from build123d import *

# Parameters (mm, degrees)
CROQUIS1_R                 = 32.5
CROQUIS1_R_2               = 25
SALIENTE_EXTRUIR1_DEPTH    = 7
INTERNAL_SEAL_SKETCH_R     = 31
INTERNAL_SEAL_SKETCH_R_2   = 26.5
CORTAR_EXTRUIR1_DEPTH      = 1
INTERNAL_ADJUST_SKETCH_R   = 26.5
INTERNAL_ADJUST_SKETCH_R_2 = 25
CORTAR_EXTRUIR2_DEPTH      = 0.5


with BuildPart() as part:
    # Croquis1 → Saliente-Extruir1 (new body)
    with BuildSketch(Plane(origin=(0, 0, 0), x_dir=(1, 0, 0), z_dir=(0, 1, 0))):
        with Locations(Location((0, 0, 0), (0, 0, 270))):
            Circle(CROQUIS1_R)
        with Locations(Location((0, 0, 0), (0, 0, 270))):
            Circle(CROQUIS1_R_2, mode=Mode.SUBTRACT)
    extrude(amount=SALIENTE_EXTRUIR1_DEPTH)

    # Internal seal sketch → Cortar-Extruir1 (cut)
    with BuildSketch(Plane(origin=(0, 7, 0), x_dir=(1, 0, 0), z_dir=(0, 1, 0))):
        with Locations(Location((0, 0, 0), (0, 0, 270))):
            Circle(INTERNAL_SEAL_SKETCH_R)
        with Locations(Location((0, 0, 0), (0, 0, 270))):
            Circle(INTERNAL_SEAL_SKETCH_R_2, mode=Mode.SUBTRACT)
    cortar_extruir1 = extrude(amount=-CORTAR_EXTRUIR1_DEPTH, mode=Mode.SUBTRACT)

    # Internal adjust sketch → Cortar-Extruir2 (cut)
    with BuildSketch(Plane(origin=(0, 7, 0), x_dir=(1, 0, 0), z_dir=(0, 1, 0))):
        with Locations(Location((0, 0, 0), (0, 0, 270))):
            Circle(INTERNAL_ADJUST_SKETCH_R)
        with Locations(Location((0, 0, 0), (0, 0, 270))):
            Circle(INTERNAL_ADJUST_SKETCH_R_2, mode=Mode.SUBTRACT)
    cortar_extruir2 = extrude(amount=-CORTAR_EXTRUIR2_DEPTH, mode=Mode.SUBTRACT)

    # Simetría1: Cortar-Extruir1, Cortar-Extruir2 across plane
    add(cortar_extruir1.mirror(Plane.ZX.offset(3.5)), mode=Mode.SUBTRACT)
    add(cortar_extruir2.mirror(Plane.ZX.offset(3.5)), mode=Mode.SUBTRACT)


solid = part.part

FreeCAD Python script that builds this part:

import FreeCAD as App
import Part
import Sketcher

doc = App.newDocument("Part")
body = doc.addObject("PartDesign::Body", "Body")

sketch1 = body.newObject("Sketcher::SketchObject", "Sketch")
sketch1.AttachmentSupport = (doc.getObject("XZ_Plane"), [""])
sketch1.MapMode = "FlatFace"
sketch1.addGeometry(Part.Circle(App.Vector(0, 0, 0), App.Vector(0, 0, 1), 32), False)
sketch1.addGeometry(Part.Circle(App.Vector(0, 0, 0), App.Vector(0, 0, 1), 25), False)
sketch1.addConstraint(Sketcher.Constraint("Coincident", 0, 3, -1, 1))
sketch1.addConstraint(Sketcher.Constraint("Coincident", 1, 3, -1, 1))
sketch1.addConstraint(Sketcher.Constraint("Diameter", 0, 65.0))
sketch1.addConstraint(Sketcher.Constraint("Diameter", 1, 50.0))
pad1 = body.newObject("PartDesign::Pad", "Pad")
pad1.Profile = sketch1
pad1.Length = 7
pad1.Reversed = True

sketch2 = body.newObject("Sketcher::SketchObject", "Sketch001")
sketch2.AttachmentSupport = (doc.getObject("XZ_Plane"), [""])
sketch2.MapMode = "FlatFace"
sketch2.AttachmentOffset = App.Placement(App.Vector(0, 0, -7), App.Rotation())
sketch2.addGeometry(Part.Circle(App.Vector(0, 0, 0), App.Vector(0, 0, 1), 31), False)
sketch2.addGeometry(Part.Circle(App.Vector(0, 0, 0), App.Vector(0, 0, 1), 26), False)
sketch2.addConstraint(Sketcher.Constraint("Coincident", 0, 3, -1, 1))
sketch2.addConstraint(Sketcher.Constraint("Coincident", 1, 3, -1, 1))
sketch2.addConstraint(Sketcher.Constraint("Diameter", 0, 62.0))
sketch2.addConstraint(Sketcher.Constraint("Diameter", 1, 53.0))
pocket1 = body.newObject("PartDesign::Pocket", "Pocket")
pocket1.Profile = sketch2
pocket1.Length = 1
pocket1.Reversed = True

sketch3 = body.newObject("Sketcher::SketchObject", "Sketch002")
sketch3.AttachmentSupport = (doc.getObject("XZ_Plane"), [""])
sketch3.MapMode = "FlatFace"
sketch3.AttachmentOffset = App.Placement(App.Vector(0, 0, -7), App.Rotation())
sketch3.addGeometry(Part.Circle(App.Vector(0, 0, 0), App.Vector(0, 0, 1), 26), False)
sketch3.addGeometry(Part.Circle(App.Vector(0, 0, 0), App.Vector(0, 0, 1), 25), False)
sketch3.addConstraint(Sketcher.Constraint("Coincident", 0, 3, -1, 1))
sketch3.addConstraint(Sketcher.Constraint("Coincident", 1, 3, -1, 1))
sketch3.addConstraint(Sketcher.Constraint("Diameter", 0, 53.0))
sketch3.addConstraint(Sketcher.Constraint("Diameter", 1, 50.0))
pocket2 = body.newObject("PartDesign::Pocket", "Pocket001")
pocket2.Profile = sketch3
pocket2.Length = 0.5
pocket2.Reversed = True
doc.recompute()

datumplane = body.newObject("PartDesign::Plane", "DatumPlane")
datumplane.AttachmentSupport = (doc.getObject("XZ_Plane"), [""])
datumplane.MapMode = "FlatFace"
datumplane.AttachmentOffset = App.Placement(App.Vector(0, 0, -3.5), App.Rotation())
mirrored = body.newObject("PartDesign::Mirrored", "Mirrored")
mirrored.Originals = [pocket1, pocket2]
mirrored.MirrorPlane = (datumplane, [""])
body.Tip = mirrored

doc.recompute()
